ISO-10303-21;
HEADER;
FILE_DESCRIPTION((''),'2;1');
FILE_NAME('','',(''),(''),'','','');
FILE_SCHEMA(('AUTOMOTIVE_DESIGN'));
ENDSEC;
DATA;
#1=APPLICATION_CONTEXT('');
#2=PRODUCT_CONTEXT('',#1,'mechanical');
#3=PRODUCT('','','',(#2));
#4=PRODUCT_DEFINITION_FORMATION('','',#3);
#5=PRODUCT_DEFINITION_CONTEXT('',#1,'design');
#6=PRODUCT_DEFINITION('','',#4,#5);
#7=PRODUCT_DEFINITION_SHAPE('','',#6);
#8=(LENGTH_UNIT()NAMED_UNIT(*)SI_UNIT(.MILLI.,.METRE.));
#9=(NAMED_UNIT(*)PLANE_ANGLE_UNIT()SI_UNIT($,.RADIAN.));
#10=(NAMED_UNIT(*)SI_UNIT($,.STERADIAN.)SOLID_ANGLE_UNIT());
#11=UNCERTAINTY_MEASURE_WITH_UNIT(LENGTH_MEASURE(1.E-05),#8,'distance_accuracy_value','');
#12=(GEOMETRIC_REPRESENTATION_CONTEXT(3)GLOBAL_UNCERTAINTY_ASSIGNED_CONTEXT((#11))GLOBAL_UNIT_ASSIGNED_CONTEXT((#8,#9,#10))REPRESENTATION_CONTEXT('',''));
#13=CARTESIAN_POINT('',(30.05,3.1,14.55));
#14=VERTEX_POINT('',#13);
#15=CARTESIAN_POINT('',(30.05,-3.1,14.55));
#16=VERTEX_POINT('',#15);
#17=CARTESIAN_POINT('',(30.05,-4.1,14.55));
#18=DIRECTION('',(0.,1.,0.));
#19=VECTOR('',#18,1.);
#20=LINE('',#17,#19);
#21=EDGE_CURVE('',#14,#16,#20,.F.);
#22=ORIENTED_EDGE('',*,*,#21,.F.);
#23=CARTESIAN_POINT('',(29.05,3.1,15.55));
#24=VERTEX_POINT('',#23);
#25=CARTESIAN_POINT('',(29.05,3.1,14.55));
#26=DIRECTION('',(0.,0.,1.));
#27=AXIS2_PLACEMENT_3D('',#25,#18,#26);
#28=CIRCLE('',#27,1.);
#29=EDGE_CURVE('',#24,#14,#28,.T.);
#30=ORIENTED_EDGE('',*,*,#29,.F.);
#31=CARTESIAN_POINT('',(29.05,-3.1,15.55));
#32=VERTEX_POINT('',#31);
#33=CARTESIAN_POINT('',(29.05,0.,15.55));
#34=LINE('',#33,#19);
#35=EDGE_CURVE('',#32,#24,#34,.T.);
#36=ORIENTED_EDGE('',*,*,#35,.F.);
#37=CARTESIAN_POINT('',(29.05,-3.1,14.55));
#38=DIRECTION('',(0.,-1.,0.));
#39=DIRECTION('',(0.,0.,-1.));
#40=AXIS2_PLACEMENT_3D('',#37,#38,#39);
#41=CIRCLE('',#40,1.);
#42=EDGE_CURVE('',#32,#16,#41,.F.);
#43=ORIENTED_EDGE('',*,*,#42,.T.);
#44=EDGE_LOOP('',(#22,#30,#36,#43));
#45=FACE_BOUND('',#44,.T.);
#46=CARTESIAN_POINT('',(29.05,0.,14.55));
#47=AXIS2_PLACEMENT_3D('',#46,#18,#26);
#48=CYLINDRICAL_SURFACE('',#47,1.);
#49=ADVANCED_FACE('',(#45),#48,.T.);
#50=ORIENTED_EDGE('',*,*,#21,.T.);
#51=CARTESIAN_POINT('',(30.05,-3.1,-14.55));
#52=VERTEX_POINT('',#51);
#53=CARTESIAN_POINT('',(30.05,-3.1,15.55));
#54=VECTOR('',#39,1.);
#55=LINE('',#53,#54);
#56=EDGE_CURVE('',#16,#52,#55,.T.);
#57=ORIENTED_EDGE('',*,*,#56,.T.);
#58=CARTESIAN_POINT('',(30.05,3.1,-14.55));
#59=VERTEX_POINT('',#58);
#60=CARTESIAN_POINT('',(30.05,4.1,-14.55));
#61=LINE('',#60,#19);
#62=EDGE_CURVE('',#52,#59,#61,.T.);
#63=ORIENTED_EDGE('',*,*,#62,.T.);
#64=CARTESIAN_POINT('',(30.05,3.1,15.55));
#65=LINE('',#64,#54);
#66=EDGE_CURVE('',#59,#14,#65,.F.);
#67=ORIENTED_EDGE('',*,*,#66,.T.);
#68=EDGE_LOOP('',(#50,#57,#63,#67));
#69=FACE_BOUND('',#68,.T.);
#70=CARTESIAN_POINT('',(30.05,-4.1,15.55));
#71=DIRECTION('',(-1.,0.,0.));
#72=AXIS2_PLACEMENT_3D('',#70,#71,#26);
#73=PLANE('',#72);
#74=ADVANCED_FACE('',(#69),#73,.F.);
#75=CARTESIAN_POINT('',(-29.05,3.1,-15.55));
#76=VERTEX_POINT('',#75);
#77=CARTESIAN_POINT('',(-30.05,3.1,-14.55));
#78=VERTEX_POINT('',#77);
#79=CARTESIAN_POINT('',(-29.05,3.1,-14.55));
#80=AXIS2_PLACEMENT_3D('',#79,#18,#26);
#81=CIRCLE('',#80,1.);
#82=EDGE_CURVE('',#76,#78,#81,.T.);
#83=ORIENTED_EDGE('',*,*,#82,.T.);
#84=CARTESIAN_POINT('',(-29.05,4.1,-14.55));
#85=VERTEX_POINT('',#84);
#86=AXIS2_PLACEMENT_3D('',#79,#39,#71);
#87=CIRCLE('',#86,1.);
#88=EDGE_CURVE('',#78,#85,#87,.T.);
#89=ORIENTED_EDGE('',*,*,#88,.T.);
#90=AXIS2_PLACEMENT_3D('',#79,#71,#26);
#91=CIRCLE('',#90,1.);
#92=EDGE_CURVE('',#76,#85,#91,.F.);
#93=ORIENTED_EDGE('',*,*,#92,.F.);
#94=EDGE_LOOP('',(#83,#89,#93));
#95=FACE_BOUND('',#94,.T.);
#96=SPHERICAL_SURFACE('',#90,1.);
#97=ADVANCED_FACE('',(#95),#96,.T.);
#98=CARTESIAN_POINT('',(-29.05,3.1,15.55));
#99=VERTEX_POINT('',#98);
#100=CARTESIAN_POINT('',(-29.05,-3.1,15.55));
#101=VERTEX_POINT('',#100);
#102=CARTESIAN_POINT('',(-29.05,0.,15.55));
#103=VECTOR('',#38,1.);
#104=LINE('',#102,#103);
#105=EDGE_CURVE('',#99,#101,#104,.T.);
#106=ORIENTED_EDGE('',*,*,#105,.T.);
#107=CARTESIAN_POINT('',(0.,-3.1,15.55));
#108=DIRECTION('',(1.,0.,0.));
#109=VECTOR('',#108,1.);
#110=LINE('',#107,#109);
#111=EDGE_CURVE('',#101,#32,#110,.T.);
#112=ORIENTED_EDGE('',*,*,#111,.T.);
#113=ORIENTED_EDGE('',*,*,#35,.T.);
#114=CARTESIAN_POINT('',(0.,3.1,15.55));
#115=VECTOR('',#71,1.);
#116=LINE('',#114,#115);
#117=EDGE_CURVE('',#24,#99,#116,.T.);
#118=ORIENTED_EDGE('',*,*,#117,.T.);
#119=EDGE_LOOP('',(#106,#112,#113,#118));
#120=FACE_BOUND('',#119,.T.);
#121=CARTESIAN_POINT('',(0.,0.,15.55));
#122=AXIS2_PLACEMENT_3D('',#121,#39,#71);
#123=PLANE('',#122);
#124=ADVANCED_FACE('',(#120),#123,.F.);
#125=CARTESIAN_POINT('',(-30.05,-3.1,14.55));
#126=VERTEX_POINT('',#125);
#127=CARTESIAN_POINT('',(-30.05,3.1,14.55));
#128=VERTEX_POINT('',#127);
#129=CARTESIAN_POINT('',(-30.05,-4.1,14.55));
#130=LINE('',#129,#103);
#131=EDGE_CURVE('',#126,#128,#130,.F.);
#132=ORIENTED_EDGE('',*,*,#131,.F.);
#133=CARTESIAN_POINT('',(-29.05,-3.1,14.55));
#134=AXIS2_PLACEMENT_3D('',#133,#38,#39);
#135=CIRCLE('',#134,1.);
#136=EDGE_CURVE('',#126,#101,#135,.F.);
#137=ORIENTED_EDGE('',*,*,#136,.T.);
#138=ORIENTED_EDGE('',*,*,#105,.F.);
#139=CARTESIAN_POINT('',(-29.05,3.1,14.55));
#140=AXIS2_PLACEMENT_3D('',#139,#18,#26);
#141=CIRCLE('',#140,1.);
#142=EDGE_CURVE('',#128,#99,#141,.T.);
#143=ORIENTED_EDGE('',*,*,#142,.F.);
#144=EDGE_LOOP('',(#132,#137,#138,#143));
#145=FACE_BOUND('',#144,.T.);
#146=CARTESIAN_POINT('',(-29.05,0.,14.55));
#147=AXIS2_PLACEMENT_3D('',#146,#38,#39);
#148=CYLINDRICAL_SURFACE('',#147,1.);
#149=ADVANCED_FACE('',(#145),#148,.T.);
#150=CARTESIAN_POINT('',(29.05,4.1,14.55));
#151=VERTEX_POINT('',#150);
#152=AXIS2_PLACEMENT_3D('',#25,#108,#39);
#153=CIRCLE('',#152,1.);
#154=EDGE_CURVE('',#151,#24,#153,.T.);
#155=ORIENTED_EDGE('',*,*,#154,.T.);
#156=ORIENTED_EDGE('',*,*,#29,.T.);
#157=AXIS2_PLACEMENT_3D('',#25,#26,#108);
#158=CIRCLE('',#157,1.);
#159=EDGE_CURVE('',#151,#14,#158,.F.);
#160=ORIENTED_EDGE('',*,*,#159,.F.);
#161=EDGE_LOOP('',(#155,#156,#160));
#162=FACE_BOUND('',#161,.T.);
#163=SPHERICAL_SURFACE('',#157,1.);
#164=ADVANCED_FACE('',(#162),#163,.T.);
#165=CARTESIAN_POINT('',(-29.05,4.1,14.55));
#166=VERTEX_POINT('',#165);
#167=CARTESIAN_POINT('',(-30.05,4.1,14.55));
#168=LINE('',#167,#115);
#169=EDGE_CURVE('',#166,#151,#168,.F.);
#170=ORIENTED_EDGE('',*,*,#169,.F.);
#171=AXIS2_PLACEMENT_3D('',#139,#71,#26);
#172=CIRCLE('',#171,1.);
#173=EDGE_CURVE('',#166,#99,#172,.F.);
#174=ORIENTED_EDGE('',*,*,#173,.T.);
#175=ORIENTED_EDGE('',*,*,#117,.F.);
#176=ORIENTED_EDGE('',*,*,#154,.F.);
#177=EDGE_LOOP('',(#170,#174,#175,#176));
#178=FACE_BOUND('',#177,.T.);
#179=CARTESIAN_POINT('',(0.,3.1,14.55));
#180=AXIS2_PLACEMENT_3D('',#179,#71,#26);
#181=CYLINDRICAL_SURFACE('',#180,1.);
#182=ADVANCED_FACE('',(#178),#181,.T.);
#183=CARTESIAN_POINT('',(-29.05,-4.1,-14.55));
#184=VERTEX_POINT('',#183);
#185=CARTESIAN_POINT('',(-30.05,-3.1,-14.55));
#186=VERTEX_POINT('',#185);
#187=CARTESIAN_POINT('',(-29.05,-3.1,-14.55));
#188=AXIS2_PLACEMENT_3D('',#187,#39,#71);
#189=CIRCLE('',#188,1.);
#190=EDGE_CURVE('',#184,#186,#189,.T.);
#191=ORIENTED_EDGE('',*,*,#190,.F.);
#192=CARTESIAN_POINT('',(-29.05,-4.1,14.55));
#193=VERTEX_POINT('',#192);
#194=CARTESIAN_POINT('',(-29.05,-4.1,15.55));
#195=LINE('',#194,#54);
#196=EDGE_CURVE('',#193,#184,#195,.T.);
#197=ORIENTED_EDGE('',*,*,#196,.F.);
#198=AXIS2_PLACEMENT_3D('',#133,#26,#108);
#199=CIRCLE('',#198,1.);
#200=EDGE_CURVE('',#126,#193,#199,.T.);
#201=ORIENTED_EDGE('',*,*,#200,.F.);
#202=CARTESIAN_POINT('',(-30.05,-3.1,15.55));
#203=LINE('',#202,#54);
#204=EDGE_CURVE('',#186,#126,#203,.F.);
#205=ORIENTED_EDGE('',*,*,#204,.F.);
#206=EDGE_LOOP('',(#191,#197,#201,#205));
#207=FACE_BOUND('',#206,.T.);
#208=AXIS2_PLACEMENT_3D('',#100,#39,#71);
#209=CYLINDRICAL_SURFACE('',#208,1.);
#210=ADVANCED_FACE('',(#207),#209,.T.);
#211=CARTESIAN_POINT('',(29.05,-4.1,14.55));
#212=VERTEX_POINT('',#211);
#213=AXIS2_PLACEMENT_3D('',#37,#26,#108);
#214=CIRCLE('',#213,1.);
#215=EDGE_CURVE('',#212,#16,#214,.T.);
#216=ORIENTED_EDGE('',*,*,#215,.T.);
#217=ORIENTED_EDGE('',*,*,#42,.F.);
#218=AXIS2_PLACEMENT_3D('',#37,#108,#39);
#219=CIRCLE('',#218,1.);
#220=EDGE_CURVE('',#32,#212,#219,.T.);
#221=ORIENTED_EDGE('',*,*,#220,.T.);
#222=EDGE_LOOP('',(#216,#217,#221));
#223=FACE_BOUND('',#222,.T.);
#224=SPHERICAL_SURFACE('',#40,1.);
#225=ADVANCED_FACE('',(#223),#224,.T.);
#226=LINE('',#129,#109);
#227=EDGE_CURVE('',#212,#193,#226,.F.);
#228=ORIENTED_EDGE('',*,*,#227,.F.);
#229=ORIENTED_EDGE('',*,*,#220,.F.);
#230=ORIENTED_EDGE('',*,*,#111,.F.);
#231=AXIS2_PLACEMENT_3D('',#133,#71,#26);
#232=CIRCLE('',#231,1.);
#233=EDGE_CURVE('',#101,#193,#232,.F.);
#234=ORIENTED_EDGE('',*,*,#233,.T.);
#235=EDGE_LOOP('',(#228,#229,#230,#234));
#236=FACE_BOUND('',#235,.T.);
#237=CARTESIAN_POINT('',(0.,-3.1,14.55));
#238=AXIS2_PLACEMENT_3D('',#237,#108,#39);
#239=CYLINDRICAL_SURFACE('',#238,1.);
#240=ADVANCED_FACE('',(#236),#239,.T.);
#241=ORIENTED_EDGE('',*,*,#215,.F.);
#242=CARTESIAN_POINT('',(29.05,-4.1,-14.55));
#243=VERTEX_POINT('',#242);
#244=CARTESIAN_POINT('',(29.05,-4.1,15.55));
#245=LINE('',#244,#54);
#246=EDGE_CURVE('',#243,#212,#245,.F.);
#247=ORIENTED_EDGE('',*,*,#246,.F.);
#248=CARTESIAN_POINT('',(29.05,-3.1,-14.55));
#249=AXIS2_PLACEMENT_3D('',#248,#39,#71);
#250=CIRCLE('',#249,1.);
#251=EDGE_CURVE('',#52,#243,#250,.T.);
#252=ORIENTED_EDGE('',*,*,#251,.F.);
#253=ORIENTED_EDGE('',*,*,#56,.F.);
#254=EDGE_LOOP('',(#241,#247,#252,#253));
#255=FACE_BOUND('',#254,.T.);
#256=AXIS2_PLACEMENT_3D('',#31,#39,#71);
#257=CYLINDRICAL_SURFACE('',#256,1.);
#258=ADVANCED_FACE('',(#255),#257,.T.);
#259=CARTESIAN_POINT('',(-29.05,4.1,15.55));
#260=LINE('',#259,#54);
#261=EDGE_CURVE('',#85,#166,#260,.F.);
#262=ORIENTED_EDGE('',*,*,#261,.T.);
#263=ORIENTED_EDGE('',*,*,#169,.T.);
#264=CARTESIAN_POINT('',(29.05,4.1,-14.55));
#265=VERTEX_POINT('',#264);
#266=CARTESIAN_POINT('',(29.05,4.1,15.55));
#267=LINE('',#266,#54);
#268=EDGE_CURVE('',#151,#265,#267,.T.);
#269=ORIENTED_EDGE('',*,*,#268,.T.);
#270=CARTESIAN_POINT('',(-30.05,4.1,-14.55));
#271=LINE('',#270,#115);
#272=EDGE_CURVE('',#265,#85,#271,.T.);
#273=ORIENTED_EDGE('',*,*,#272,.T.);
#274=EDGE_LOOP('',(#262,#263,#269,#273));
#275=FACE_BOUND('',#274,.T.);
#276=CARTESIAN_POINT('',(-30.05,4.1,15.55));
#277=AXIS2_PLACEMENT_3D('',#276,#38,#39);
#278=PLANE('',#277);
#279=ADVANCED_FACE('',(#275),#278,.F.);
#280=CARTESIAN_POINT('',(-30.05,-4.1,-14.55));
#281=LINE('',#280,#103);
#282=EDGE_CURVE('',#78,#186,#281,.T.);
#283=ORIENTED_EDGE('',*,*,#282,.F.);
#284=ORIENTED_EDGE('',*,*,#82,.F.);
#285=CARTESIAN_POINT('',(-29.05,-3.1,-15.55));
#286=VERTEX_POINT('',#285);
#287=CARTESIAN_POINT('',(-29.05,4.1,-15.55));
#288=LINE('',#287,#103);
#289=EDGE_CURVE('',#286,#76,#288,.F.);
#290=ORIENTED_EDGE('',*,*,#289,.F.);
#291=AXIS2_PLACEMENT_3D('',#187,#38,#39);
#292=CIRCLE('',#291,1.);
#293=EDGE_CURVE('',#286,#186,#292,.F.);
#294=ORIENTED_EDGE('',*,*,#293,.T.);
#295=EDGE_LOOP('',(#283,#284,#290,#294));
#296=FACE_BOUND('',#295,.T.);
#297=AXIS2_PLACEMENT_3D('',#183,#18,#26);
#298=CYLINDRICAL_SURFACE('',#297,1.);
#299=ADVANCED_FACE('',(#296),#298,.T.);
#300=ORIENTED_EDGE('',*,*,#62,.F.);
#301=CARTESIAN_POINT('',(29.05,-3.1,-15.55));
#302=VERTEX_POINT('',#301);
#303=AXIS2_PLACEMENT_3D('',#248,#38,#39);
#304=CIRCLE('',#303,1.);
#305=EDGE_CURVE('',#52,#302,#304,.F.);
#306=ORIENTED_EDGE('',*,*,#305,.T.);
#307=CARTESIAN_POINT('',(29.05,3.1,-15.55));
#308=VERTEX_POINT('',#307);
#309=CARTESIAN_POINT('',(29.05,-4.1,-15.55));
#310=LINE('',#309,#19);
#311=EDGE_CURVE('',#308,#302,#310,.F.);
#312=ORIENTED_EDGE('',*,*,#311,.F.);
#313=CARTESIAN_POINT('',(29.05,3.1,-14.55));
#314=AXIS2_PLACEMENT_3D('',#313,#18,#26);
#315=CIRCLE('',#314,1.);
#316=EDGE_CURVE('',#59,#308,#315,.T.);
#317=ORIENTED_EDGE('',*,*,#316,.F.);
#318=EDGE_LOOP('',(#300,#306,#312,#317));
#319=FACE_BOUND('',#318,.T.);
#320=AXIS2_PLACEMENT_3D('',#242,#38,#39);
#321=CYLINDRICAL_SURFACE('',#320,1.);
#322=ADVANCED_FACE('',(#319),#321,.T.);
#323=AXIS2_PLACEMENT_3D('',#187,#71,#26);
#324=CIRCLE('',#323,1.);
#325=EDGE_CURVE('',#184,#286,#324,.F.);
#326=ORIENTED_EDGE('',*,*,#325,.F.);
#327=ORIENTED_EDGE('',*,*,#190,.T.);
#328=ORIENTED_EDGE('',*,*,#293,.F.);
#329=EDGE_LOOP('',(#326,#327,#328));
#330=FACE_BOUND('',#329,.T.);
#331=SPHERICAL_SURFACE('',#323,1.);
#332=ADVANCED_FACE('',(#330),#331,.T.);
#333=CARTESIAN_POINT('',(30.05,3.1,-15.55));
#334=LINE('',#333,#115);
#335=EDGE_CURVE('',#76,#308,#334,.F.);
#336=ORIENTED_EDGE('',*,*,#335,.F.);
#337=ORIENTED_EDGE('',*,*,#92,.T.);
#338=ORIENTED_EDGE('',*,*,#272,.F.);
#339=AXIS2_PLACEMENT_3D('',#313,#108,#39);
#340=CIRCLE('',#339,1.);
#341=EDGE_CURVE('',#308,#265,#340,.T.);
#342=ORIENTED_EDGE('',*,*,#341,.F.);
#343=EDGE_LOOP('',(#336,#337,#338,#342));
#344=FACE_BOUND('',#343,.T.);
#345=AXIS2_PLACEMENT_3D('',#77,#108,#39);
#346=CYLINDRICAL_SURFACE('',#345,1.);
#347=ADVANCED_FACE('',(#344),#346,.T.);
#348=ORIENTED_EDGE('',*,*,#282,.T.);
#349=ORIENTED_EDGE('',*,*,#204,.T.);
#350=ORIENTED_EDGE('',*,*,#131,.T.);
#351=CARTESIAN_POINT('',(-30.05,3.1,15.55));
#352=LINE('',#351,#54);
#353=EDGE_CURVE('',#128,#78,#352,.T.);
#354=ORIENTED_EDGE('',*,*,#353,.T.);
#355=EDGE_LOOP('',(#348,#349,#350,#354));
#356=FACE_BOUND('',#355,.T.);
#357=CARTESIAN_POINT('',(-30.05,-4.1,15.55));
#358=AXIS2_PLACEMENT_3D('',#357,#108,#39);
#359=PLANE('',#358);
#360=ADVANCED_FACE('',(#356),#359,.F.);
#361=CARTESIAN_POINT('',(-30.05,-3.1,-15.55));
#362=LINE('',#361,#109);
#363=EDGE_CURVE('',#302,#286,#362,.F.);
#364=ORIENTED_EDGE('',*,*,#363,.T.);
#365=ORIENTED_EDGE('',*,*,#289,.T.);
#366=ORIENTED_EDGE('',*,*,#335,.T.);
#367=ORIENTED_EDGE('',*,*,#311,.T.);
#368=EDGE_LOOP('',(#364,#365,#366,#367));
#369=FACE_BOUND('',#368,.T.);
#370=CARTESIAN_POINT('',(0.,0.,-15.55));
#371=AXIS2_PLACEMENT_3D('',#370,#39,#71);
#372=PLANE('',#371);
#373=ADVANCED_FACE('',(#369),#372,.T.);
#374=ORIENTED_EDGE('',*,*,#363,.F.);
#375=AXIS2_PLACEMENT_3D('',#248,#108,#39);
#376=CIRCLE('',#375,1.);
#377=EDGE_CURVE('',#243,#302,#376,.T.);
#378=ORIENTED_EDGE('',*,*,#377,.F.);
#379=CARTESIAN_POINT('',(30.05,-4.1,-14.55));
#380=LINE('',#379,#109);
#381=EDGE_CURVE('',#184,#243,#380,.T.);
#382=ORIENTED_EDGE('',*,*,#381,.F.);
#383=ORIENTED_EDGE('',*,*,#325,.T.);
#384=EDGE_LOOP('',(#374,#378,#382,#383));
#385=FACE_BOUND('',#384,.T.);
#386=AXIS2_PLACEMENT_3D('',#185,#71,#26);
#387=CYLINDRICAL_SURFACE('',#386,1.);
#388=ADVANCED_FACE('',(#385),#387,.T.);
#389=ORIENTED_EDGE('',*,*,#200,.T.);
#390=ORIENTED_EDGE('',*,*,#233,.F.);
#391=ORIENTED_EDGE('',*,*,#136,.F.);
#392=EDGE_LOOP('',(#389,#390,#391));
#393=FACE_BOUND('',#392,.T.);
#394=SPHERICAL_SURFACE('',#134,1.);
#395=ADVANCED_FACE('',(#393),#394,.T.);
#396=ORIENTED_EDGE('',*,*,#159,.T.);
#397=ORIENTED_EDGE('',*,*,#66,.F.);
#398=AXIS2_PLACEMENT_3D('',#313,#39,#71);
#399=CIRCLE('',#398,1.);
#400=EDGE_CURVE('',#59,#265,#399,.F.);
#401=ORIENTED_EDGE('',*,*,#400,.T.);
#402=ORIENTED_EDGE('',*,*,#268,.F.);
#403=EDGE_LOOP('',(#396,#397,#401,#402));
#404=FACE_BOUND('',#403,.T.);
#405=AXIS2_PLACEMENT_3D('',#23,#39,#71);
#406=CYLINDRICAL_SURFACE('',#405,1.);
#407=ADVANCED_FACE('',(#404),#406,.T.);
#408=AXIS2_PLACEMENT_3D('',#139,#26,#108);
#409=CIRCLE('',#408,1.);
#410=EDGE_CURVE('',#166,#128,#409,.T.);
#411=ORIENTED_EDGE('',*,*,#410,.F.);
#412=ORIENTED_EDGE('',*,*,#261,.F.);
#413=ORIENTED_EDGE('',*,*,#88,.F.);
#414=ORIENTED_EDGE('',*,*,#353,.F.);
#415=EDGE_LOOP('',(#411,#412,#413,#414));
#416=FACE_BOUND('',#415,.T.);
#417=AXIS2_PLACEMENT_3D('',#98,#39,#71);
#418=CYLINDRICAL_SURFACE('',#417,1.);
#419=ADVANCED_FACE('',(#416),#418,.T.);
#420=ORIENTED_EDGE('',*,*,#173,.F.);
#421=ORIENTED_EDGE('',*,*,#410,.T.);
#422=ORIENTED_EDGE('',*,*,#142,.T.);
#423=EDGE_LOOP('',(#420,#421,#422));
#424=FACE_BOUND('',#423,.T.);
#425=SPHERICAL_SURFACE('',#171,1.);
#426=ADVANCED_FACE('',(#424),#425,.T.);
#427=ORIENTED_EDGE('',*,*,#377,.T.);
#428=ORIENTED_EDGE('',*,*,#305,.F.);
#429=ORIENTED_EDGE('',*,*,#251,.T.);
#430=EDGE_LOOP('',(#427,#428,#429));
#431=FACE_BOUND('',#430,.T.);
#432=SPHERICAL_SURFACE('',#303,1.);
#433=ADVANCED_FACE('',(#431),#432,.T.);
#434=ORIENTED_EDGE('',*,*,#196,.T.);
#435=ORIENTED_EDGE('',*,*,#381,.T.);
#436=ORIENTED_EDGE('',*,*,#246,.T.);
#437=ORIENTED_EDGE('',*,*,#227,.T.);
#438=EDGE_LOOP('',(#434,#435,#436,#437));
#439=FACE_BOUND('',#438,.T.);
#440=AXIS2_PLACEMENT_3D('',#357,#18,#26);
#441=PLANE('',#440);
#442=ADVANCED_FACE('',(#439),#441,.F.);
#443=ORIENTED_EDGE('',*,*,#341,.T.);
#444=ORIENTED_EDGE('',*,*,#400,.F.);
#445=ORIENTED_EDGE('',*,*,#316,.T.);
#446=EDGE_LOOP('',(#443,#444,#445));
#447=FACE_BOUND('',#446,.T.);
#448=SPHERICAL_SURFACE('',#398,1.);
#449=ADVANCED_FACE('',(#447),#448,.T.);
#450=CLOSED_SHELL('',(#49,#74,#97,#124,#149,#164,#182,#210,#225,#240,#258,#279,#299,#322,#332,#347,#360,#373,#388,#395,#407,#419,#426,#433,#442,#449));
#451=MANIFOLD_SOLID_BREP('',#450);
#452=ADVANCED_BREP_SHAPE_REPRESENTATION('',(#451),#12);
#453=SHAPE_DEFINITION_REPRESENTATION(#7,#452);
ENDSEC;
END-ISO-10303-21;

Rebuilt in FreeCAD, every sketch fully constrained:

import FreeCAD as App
import Part
import Sketcher
Q = App.Units.Quantity

doc = App.newDocument("Part")
body = doc.addObject("PartDesign::Body", "Body")

sketch1 = body.newObject("Sketcher::SketchObject", "Sketch")
sketch1.AttachmentSupport = (doc.getObject("XY_Plane"), [""])
sketch1.MapMode = "FlatFace"
sketch1.addGeometry([
    Part.LineSegment(App.Vector(-30, 4, 0), App.Vector(-30, -4, 0)),
    Part.LineSegment(App.Vector(-30, -4, 0), App.Vector(30, -4, 0)),
    Part.LineSegment(App.Vector(30, -4, 0), App.Vector(30, 4, 0)),
    Part.LineSegment(App.Vector(30, 4, 0), App.Vector(-30, 4, 0)),
], False)
sketch1.addConstraint([
    Sketcher.Constraint("Coincident", 0, 2, 1, 1),
    Sketcher.Constraint("Coincident", 1, 2, 2, 1),
    Sketcher.Constraint("Coincident", 2, 2, 3, 1),
    Sketcher.Constraint("Coincident", 3, 2, 0, 1),
    Sketcher.Constraint("Vertical", 0),
    Sketcher.Constraint("Horizontal", 1),
    Sketcher.Constraint("Vertical", 2),
    Sketcher.Constraint("Horizontal", 3),
    Sketcher.Constraint("Symmetric", 0, 2, 2, 2, -1, 1),
    Sketcher.Constraint("DistanceX", 1, 1, 1, 2, Q("60.1 mm")),
    Sketcher.Constraint("DistanceY", 0, 2, 0, 1, Q("8.2 mm")),
])
pad1 = body.newObject("PartDesign::Pad", "Pad")
pad1.Profile = sketch1
pad1.Length = 31.1
pad1.Midplane = True
doc.recompute()

fillet = body.newObject("PartDesign::Fillet", "Fillet")
fillet.Base = (pad1, ["Edge1"])
fillet.UseAllEdges = True
fillet.Radius = 1

doc.recompute()
